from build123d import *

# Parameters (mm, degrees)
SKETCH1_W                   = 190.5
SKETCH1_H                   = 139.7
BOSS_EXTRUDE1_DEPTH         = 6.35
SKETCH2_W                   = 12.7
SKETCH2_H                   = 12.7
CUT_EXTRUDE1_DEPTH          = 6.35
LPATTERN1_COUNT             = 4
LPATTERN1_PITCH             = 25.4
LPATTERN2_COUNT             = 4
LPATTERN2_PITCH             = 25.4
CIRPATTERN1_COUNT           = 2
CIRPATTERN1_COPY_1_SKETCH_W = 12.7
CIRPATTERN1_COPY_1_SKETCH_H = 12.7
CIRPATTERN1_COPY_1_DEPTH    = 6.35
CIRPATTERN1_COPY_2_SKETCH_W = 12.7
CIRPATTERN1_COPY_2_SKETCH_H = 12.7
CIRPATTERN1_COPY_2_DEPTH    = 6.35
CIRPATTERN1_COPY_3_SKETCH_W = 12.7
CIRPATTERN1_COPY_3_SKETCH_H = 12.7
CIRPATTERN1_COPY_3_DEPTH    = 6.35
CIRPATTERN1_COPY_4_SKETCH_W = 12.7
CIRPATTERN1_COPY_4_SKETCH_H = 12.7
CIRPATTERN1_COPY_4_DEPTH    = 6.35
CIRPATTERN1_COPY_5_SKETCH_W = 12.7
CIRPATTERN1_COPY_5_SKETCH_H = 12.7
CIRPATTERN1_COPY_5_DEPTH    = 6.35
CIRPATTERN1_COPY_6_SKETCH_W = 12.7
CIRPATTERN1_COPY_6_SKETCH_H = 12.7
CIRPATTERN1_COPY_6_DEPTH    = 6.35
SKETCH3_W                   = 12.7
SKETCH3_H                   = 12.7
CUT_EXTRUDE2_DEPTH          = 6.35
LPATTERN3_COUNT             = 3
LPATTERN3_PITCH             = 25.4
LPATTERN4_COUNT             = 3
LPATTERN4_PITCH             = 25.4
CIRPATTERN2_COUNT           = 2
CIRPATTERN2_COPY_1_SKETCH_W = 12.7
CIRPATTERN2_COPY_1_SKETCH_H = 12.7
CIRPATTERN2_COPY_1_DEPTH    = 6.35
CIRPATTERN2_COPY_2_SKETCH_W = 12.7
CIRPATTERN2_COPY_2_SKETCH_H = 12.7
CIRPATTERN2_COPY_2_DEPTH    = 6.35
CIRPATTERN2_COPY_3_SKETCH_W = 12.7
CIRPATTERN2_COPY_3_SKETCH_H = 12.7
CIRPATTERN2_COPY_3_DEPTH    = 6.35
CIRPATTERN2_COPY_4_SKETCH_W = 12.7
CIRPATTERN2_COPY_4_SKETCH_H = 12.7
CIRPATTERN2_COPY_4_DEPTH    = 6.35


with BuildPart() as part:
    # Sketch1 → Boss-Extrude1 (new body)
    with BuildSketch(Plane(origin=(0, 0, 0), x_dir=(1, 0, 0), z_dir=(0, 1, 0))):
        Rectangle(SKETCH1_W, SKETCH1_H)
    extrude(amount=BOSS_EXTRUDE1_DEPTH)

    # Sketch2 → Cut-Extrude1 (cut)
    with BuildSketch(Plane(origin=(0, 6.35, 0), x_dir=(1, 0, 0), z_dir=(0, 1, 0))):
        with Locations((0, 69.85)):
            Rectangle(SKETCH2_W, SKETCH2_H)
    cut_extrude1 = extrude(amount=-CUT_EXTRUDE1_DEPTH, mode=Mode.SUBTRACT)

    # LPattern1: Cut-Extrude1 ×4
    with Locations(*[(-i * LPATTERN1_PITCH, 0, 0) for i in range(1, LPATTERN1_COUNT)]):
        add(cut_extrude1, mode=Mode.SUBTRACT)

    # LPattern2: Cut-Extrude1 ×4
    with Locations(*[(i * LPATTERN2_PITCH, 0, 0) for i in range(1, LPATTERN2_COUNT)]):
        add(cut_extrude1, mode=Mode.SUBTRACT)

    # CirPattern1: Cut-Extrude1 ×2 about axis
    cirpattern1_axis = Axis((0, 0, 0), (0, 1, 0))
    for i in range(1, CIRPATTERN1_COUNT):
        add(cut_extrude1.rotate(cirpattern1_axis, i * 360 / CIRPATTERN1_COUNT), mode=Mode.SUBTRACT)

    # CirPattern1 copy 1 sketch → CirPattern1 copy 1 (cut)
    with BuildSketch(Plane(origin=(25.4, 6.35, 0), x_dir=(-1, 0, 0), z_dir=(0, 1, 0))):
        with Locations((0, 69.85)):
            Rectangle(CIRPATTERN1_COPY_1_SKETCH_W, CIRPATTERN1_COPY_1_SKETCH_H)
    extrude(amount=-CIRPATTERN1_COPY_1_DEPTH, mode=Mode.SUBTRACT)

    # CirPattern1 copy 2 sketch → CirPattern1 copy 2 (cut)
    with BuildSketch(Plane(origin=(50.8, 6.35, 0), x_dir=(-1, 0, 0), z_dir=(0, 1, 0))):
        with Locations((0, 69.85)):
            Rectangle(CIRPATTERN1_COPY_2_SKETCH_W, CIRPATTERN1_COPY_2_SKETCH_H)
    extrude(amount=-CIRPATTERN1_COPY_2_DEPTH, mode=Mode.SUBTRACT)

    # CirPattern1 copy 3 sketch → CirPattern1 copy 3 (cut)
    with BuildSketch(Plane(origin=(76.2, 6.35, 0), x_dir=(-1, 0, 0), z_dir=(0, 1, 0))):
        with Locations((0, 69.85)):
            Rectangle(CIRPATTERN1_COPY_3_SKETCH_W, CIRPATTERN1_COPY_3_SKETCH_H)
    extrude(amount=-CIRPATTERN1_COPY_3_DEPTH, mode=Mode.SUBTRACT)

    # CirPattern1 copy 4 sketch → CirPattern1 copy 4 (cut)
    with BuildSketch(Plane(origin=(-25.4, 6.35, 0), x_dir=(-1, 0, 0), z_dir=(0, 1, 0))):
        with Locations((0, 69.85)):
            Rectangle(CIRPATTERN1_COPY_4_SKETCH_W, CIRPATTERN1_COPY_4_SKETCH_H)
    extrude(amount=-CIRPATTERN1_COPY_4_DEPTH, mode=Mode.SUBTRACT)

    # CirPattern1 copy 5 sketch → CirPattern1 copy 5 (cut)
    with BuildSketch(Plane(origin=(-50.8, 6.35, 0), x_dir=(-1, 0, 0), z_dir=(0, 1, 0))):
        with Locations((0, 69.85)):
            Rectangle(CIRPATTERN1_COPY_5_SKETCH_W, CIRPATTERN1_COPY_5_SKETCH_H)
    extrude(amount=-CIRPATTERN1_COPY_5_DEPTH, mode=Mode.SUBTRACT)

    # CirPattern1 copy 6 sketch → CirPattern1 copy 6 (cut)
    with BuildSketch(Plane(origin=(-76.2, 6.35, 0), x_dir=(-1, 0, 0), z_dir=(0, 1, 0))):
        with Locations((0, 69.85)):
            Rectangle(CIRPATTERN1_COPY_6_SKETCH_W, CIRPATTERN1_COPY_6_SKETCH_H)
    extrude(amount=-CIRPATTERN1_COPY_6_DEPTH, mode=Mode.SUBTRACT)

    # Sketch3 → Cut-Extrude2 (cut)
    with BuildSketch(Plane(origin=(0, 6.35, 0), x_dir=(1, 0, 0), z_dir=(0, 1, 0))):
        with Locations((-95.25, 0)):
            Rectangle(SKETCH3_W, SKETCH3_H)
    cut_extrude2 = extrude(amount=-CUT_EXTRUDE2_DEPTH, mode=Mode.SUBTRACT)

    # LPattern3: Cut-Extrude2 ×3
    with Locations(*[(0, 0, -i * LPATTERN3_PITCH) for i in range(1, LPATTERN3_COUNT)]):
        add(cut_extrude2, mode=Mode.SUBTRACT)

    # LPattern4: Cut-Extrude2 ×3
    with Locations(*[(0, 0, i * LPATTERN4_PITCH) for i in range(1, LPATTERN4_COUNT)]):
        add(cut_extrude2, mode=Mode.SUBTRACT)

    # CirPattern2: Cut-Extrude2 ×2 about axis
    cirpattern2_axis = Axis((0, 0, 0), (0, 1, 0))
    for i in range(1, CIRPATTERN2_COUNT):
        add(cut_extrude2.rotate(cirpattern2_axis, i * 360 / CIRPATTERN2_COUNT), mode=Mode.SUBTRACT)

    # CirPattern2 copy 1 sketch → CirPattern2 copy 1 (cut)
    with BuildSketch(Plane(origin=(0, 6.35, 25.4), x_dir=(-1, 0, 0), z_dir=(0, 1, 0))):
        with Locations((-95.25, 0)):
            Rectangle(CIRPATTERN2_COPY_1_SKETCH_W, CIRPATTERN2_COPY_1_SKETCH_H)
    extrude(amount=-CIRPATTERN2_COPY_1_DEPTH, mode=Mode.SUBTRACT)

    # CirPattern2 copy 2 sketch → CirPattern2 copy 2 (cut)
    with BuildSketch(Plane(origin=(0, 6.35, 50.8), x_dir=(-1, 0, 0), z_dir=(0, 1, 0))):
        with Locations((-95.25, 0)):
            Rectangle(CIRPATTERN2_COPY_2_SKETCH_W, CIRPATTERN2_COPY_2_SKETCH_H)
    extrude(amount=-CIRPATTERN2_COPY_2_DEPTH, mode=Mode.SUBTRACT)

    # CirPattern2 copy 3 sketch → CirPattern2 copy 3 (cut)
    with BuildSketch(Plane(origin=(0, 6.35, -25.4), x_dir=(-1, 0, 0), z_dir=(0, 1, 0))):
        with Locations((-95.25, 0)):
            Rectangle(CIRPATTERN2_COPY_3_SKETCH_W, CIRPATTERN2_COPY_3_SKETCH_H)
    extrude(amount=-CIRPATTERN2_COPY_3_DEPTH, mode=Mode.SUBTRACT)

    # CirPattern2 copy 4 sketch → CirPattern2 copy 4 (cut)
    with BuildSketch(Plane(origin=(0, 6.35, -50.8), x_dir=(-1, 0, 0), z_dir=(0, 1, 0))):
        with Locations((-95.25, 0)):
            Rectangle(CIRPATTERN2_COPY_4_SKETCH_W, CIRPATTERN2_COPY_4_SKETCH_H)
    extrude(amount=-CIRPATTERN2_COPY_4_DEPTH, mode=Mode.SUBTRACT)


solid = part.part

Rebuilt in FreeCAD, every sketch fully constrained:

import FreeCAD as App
import Part
import Sketcher
Q = App.Units.Quantity


def add_polygon(sketch, points):
    """Adds a closed chain of lines whose ends are joined by coincident constraints."""
    first, n = sketch.GeometryCount, len(points)
    for a, b in zip(points, points[1:] + points[:1]):
        sketch.addGeometry(Part.LineSegment(App.Vector(*a, 0), App.Vector(*b, 0)), False)
    for i in range(n):
        sketch.addConstraint(Sketcher.Constraint("Coincident", first + i, 2, first + (i + 1) % n, 1))

doc = App.newDocument("Part")
params = doc.addObject("Spreadsheet::Sheet", "Params")
for row, (alias, value) in enumerate([
    ("sketch1_width", "7.5 in"),
    ("sketch1_height", "5.5 in"),
    ("pad1_length", "0.25 in"),
    ("sketch2_width", "0.5 in"),
    ("pocket1_length", "0.25 in"),
    ("linearpattern_pitch", "1 in"),
    ("linearpattern2_pitch", "1 in"),
    ("sketch3_width", "0.5 in"),
    ("pocket2_length", "0.25 in"),
    ("sketch4_width", "0.5 in"),
    ("pocket3_length", "0.25 in"),
    ("sketch5_width", "0.5 in"),
    ("pocket4_length", "0.25 in"),
    ("sketch6_width", "0.5 in"),
    ("pocket5_length", "0.25 in"),
    ("sketch7_width", "0.5 in"),
    ("pocket6_length", "0.25 in"),
    ("sketch8_width", "0.5 in"),
    ("pocket7_length", "0.25 in"),
    ("sketch9_width", "0.5 in"),
    ("pocket8_length", "0.25 in"),
    ("linearpattern3_pitch", "1 in"),
    ("linearpattern4_pitch", "1 in"),
    ("sketch10_width", "0.5 in"),
    ("pocket9_length", "0.25 in"),
    ("sketch11_width", "0.5 in"),
    ("pocket10_length", "0.25 in"),
    ("sketch12_width", "0.5 in"),
    ("pocket11_length", "0.25 in"),
    ("sketch13_width", "0.5 in"),
    ("pocket12_length", "0.25 in"),
], start=1):
    params.set(f"A{row}", alias)
    params.set(f"B{row}", "=" + value)
    params.setAlias(f"B{row}", alias)

body = doc.addObject("PartDesign::Body", "Body")

sketch1 = body.newObject("Sketcher::SketchObject", "Sketch")
sketch1.AttachmentSupport = (doc.getObject("XZ_Plane"), [""])
sketch1.MapMode = "FlatFace"
add_polygon(sketch1, [(-95, -70), (-95, 70), (95, 70), (95, -70)])
sketch1.addConstraint(Sketcher.Constraint("Vertical", 0))
sketch1.addConstraint(Sketcher.Constraint("Horizontal", 1))
sketch1.addConstraint(Sketcher.Constraint("Vertical", 2))
sketch1.addConstraint(Sketcher.Constraint("Horizontal", 3))
sketch1.addConstraint(Sketcher.Constraint("Symmetric", 0, 2, 2, 2, -1, 1))
sketch1.addConstraint(Sketcher.Constraint("DistanceX", 1, 1, 1, 2, Q("7.5 in")))
sketch1.addConstraint(Sketcher.Constraint("DistanceY", 0, 1, 0, 2, Q("5.5 in")))
sketch1.setExpression("Constraints[9]", "Params.sketch1_width")
sketch1.setExpression("Constraints[10]", "Params.sketch1_height")
pad1 = body.newObject("PartDesign::Pad", "Pad")
pad1.Profile = sketch1
pad1.setExpression("Length", "Params.pad1_length")
pad1.Reversed = True

sketch2 = body.newObject("Sketcher::SketchObject", "Sketch001")
sketch2.AttachmentSupport = (doc.getObject("XZ_Plane"), [""])
sketch2.MapMode = "FlatFace"
sketch2.AttachmentOffset = App.Placement(App.Vector(0, 0, -0.25 * 25.4), App.Rotation())
add_polygon(sketch2, [(-6, -76), (-6, -64), (6, -64), (6, -76)])
sketch2.addConstraint(Sketcher.Constraint("Vertical", 0))
sketch2.addConstraint(Sketcher.Constraint("Horizontal", 1))
sketch2.addConstraint(Sketcher.Constraint("Vertical", 2))
sketch2.addConstraint(Sketcher.Constraint("Horizontal", 3))
sketch2.addConstraint(Sketcher.Constraint("Equal", 3, 0))
sketch2.addConstraint(Sketcher.Constraint("DistanceX", 1, 1, 1, 2, Q("0.5 in")))
sketch2.addConstraint(Sketcher.Constraint("DistanceY", 2, 2, -1, 1, Q("3 in")))
sketch2.addConstraint(Sketcher.Constraint("DistanceX", 0, 2, -1, 1, Q("0.25 in")))
sketch2.setExpression("Constraints[9]", "Params.sketch2_width")
pocket1 = body.newObject("PartDesign::Pocket", "Pocket")
pocket1.Profile = sketch2
pocket1.setExpression("Length", "Params.pocket1_length")
pocket1.Reversed = True
doc.recompute()

linearpattern = body.newObject("PartDesign::LinearPattern", "LinearPattern")
linearpattern.Originals = [pocket1]
linearpattern.Direction = (doc.getObject("X_Axis"), [""])
linearpattern.Mode = "offset"
linearpattern.setExpression("Offset", "Params.linearpattern_pitch")
linearpattern.Occurrences = 4
linearpattern.Reversed = True
body.Tip = linearpattern
doc.recompute()

linearpattern2 = body.newObject("PartDesign::LinearPattern", "LinearPattern001")
linearpattern2.Originals = [pocket1]
linearpattern2.Direction = (doc.getObject("X_Axis"), [""])
linearpattern2.Mode = "offset"
linearpattern2.setExpression("Offset", "Params.linearpattern2_pitch")
linearpattern2.Occurrences = 4
body.Tip = linearpattern2
doc.recompute()

polarpattern = body.newObject("PartDesign::PolarPattern", "PolarPattern")
polarpattern.Originals = [pocket1]
polarpattern.Axis = (doc.getObject("Y_Axis"), [""])
polarpattern.Angle = 360
polarpattern.Occurrences = 2
body.Tip = polarpattern

sketch3 = body.newObject("Sketcher::SketchObject", "Sketch002")
sketch3.AttachmentSupport = (doc.getObject("XZ_Plane"), [""])
sketch3.MapMode = "FlatFace"
sketch3.AttachmentOffset = App.Placement(App.Vector(0, 0, -0.25 * 25.4), App.Rotation())
add_polygon(sketch3, [(32, 76), (32, 64), (19, 64), (19, 76)])
sketch3.addConstraint(Sketcher.Constraint("Vertical", 0))
sketch3.addConstraint(Sketcher.Constraint("Horizontal", 1))
sketch3.addConstraint(Sketcher.Constraint("Vertical", 2))
sketch3.addConstraint(Sketcher.Constraint("Horizontal", 3))
sketch3.addConstraint(Sketcher.Constraint("Equal", 3, 0))
sketch3.addConstraint(Sketcher.Constraint("DistanceX", 1, 2, 1, 1, Q("0.5 in")))
sketch3.addConstraint(Sketcher.Constraint("DistanceY", -1, 1, 2, 2, Q("3 in")))
sketch3.addConstraint(Sketcher.Constraint("DistanceX", -1, 1, 0, 2, Q("1.25 in")))
sketch3.setExpression("Constraints[9]", "Params.sketch3_width")
pocket2 = body.newObject("PartDesign::Pocket", "Pocket001")
pocket2.Profile = sketch3
pocket2.setExpression("Length", "Params.pocket2_length")
pocket2.Reversed = True

sketch4 = body.newObject("Sketcher::SketchObject", "Sketch003")
sketch4.AttachmentSupport = (doc.getObject("XZ_Plane"), [""])
sketch4.MapMode = "FlatFace"
sketch4.AttachmentOffset = App.Placement(App.Vector(0, 0, -0.25 * 25.4), App.Rotation())
add_polygon(sketch4, [(57, 76), (57, 64), (44, 64), (44, 76)])
sketch4.addConstraint(Sketcher.Constraint("Vertical", 0))
sketch4.addConstraint(Sketcher.Constraint("Horizontal", 1))
sketch4.addConstraint(Sketcher.Constraint("Vertical", 2))
sketch4.addConstraint(Sketcher.Constraint("Horizontal", 3))
sketch4.addConstraint(Sketcher.Constraint("Equal", 3, 0))
sketch4.addConstraint(Sketcher.Constraint("DistanceX", 1, 2, 1, 1, Q("0.5 in")))
sketch4.addConstraint(Sketcher.Constraint("DistanceY", -1, 1, 2, 2, Q("3 in")))
sketch4.addConstraint(Sketcher.Constraint("DistanceX", -1, 1, 0, 2, Q("2.25 in")))
sketch4.setExpression("Constraints[9]", "Params.sketch4_width")
pocket3 = body.newObject("PartDesign::Pocket", "Pocket002")
pocket3.Profile = sketch4
pocket3.setExpression("Length", "Params.pocket3_length")
pocket3.Reversed = True

sketch5 = body.newObject("Sketcher::SketchObject", "Sketch004")
sketch5.AttachmentSupport = (doc.getObject("XZ_Plane"), [""])
sketch5.MapMode = "FlatFace"
sketch5.AttachmentOffset = App.Placement(App.Vector(0, 0, -0.25 * 25.4), App.Rotation())
add_polygon(sketch5, [(83, 76), (83, 64), (70, 64), (70, 76)])
sketch5.addConstraint(Sketcher.Constraint("Vertical", 0))
sketch5.addConstraint(Sketcher.Constraint("Horizontal", 1))
sketch5.addConstraint(Sketcher.Constraint("Vertical", 2))
sketch5.addConstraint(Sketcher.Constraint("Horizontal", 3))
sketch5.addConstraint(Sketcher.Constraint("Equal", 3, 0))
sketch5.addConstraint(Sketcher.Constraint("DistanceX", 1, 2, 1, 1, Q("0.5 in")))
sketch5.addConstraint(Sketcher.Constraint("DistanceY", -1, 1, 2, 2, Q("3 in")))
sketch5.addConstraint(Sketcher.Constraint("DistanceX", -1, 1, 0, 2, Q("3.25 in")))
sketch5.setExpression("Constraints[9]", "Params.sketch5_width")
pocket4 = body.newObject("PartDesign::Pocket", "Pocket003")
pocket4.Profile = sketch5
pocket4.setExpression("Length", "Params.pocket4_length")
pocket4.Reversed = True

sketch6 = body.newObject("Sketcher::SketchObject", "Sketch005")
sketch6.AttachmentSupport = (doc.getObject("XZ_Plane"), [""])
sketch6.MapMode = "FlatFace"
sketch6.AttachmentOffset = App.Placement(App.Vector(0, 0, -0.25 * 25.4), App.Rotation())
add_polygon(sketch6, [(-19, 76), (-19, 64), (-32, 64), (-32, 76)])
sketch6.addConstraint(Sketcher.Constraint("Vertical", 0))
sketch6.addConstraint(Sketcher.Constraint("Horizontal", 1))
sketch6.addConstraint(Sketcher.Constraint("Vertical", 2))
sketch6.addConstraint(Sketcher.Constraint("Horizontal", 3))
sketch6.addConstraint(Sketcher.Constraint("Equal", 3, 0))
sketch6.addConstraint(Sketcher.Constraint("DistanceX", 1, 2, 1, 1, Q("0.5 in")))
sketch6.addConstraint(Sketcher.Constraint("DistanceY", -1, 1, 2, 2, Q("3 in")))
sketch6.addConstraint(Sketcher.Constraint("DistanceX", 0, 2, -1, 1, Q("0.75 in")))
sketch6.setExpression("Constraints[9]", "Params.sketch6_width")
pocket5 = body.newObject("PartDesign::Pocket", "Pocket004")
pocket5.Profile = sketch6
pocket5.setExpression("Length", "Params.pocket5_length")
pocket5.Reversed = True

sketch7 = body.newObject("Sketcher::SketchObject", "Sketch006")
sketch7.AttachmentSupport = (doc.getObject("XZ_Plane"), [""])
sketch7.MapMode = "FlatFace"
sketch7.AttachmentOffset = App.Placement(App.Vector(0, 0, -0.25 * 25.4), App.Rotation())
add_polygon(sketch7, [(-44, 76), (-44, 64), (-57, 64), (-57, 76)])
sketch7.addConstraint(Sketcher.Constraint("Vertical", 0))
sketch7.addConstraint(Sketcher.Constraint("Horizontal", 1))
sketch7.addConstraint(Sketcher.Constraint("Vertical", 2))
sketch7.addConstraint(Sketcher.Constraint("Horizontal", 3))
sketch7.addConstraint(Sketcher.Constraint("Equal", 3, 0))
sketch7.addConstraint(Sketcher.Constraint("DistanceX", 1, 2, 1, 1, Q("0.5 in")))
sketch7.addConstraint(Sketcher.Constraint("DistanceY", -1, 1, 2, 2, Q("3 in")))
sketch7.addConstraint(Sketcher.Constraint("DistanceX", 0, 2, -1, 1, Q("1.75 in")))
sketch7.setExpression("Constraints[9]", "Params.sketch7_width")
pocket6 = body.newObject("PartDesign::Pocket", "Pocket005")
pocket6.Profile = sketch7
pocket6.setExpression("Length", "Params.pocket6_length")
pocket6.Reversed = True

sketch8 = body.newObject("Sketcher::SketchObject", "Sketch007")
sketch8.AttachmentSupport = (doc.getObject("XZ_Plane"), [""])
sketch8.MapMode = "FlatFace"
sketch8.AttachmentOffset = App.Placement(App.Vector(0, 0, -0.25 * 25.4), App.Rotation())
add_polygon(sketch8, [(-70, 76), (-70, 64), (-83, 64), (-83, 76)])
sketch8.addConstraint(Sketcher.Constraint("Vertical", 0))
sketch8.addConstraint(Sketcher.Constraint("Horizontal", 1))
sketch8.addConstraint(Sketcher.Constraint("Vertical", 2))
sketch8.addConstraint(Sketcher.Constraint("Horizontal", 3))
sketch8.addConstraint(Sketcher.Constraint("Equal", 3, 0))
sketch8.addConstraint(Sketcher.Constraint("DistanceX", 1, 2, 1, 1, Q("0.5 in")))
sketch8.addConstraint(Sketcher.Constraint("DistanceY", -1, 1, 2, 2, Q("3 in")))
sketch8.addConstraint(Sketcher.Constraint("DistanceX", 0, 2, -1, 1, Q("2.75 in")))
sketch8.setExpression("Constraints[9]", "Params.sketch8_width")
pocket7 = body.newObject("PartDesign::Pocket", "Pocket006")
pocket7.Profile = sketch8
pocket7.setExpression("Length", "Params.pocket7_length")
pocket7.Reversed = True

sketch9 = body.newObject("Sketcher::SketchObject", "Sketch008")
sketch9.AttachmentSupport = (doc.getObject("XZ_Plane"), [""])
sketch9.MapMode = "FlatFace"
sketch9.AttachmentOffset = App.Placement(App.Vector(0, 0, -0.25 * 25.4), App.Rotation())
add_polygon(sketch9, [(-102, -6), (-102, 6), (-89, 6), (-89, -6)])
sketch9.addConstraint(Sketcher.Constraint("Vertical", 0))
sketch9.addConstraint(Sketcher.Constraint("Horizontal", 1))
sketch9.addConstraint(Sketcher.Constraint("Vertical", 2))
sketch9.addConstraint(Sketcher.Constraint("Horizontal", 3))
sketch9.addConstraint(Sketcher.Constraint("Equal", 3, 0))
sketch9.addConstraint(Sketcher.Constraint("DistanceX", 1, 1, 1, 2, Q("0.5 in")))
sketch9.addConstraint(Sketcher.Constraint("DistanceX", 0, 2, -1, 1, Q("4 in")))
sketch9.addConstraint(Sketcher.Constraint("DistanceY", -1, 1, 0, 2, Q("0.25 in")))
sketch9.setExpression("Constraints[9]", "Params.sketch9_width")
pocket8 = body.newObject("PartDesign::Pocket", "Pocket007")
pocket8.Profile = sketch9
pocket8.setExpression("Length", "Params.pocket8_length")
pocket8.Reversed = True
doc.recompute()

linearpattern3 = body.newObject("PartDesign::LinearPattern", "LinearPattern002")
linearpattern3.Originals = [pocket8]
linearpattern3.Direction = (doc.getObject("Z_Axis"), [""])
linearpattern3.Mode = "offset"
linearpattern3.setExpression("Offset", "Params.linearpattern3_pitch")
linearpattern3.Occurrences = 3
linearpattern3.Reversed = True
body.Tip = linearpattern3
doc.recompute()

linearpattern4 = body.newObject("PartDesign::LinearPattern", "LinearPattern003")
linearpattern4.Originals = [pocket8]
linearpattern4.Direction = (doc.getObject("Z_Axis"), [""])
linearpattern4.Mode = "offset"
linearpattern4.setExpression("Offset", "Params.linearpattern4_pitch")
linearpattern4.Occurrences = 3
body.Tip = linearpattern4
doc.recompute()

polarpattern2 = body.newObject("PartDesign::PolarPattern", "PolarPattern001")
polarpattern2.Originals = [pocket8]
polarpattern2.Axis = (doc.getObject("Y_Axis"), [""])
polarpattern2.Angle = 360
polarpattern2.Occurrences = 2
body.Tip = polarpattern2

sketch10 = body.newObject("Sketcher::SketchObject", "Sketch009")
sketch10.AttachmentSupport = (doc.getObject("XZ_Plane"), [""])
sketch10.MapMode = "FlatFace"
sketch10.AttachmentOffset = App.Placement(App.Vector(0, 0, -0.25 * 25.4), App.Rotation())
add_polygon(sketch10, [(102, 32), (102, 19), (89, 19), (89, 32)])
sketch10.addConstraint(Sketcher.Constraint("Vertical", 0))
sketch10.addConstraint(Sketcher.Constraint("Horizontal", 1))
sketch10.addConstraint(Sketcher.Constraint("Vertical", 2))
sketch10.addConstraint(Sketcher.Constraint("Horizontal", 3))
sketch10.addConstraint(Sketcher.Constraint("Equal", 3, 0))
sketch10.addConstraint(Sketcher.Constraint("DistanceX", 1, 2, 1, 1, Q("0.5 in")))
sketch10.addConstraint(Sketcher.Constraint("DistanceX", -1, 1, 0, 2, Q("4 in")))
sketch10.addConstraint(Sketcher.Constraint("DistanceY", -1, 1, 0, 2, Q("0.75 in")))
sketch10.setExpression("Constraints[9]", "Params.sketch10_width")
pocket9 = body.newObject("PartDesign::Pocket", "Pocket008")
pocket9.Profile = sketch10
pocket9.setExpression("Length", "Params.pocket9_length")
pocket9.Reversed = True

sketch11 = body.newObject("Sketcher::SketchObject", "Sketch010")
sketch11.AttachmentSupport = (doc.getObject("XZ_Plane"), [""])
sketch11.MapMode = "FlatFace"
sketch11.AttachmentOffset = App.Placement(App.Vector(0, 0, -0.25 * 25.4), App.Rotation())
add_polygon(sketch11, [(102, 57), (102, 44), (89, 44), (89, 57)])
sketch11.addConstraint(Sketcher.Constraint("Vertical", 0))
sketch11.addConstraint(Sketcher.Constraint("Horizontal", 1))
sketch11.addConstraint(Sketcher.Constraint("Vertical", 2))
sketch11.addConstraint(Sketcher.Constraint("Horizontal", 3))
sketch11.addConstraint(Sketcher.Constraint("Equal", 3, 0))
sketch11.addConstraint(Sketcher.Constraint("DistanceX", 1, 2, 1, 1, Q("0.5 in")))
sketch11.addConstraint(Sketcher.Constraint("DistanceX", -1, 1, 0, 2, Q("4 in")))
sketch11.addConstraint(Sketcher.Constraint("DistanceY", -1, 1, 0, 2, Q("1.75 in")))
sketch11.setExpression("Constraints[9]", "Params.sketch11_width")
pocket10 = body.newObject("PartDesign::Pocket", "Pocket009")
pocket10.Profile = sketch11
pocket10.setExpression("Length", "Params.pocket10_length")
pocket10.Reversed = True

sketch12 = body.newObject("Sketcher::SketchObject", "Sketch011")
sketch12.AttachmentSupport = (doc.getObject("XZ_Plane"), [""])
sketch12.MapMode = "FlatFace"
sketch12.AttachmentOffset = App.Placement(App.Vector(0, 0, -0.25 * 25.4), App.Rotation())
add_polygon(sketch12, [(102, -19), (102, -32), (89, -32), (89, -19)])
sketch12.addConstraint(Sketcher.Constraint("Vertical", 0))
sketch12.addConstraint(Sketcher.Constraint("Horizontal", 1))
sketch12.addConstraint(Sketcher.Constraint("Vertical", 2))
sketch12.addConstraint(Sketcher.Constraint("Horizontal", 3))
sketch12.addConstraint(Sketcher.Constraint("Equal", 3, 0))
sketch12.addConstraint(Sketcher.Constraint("DistanceX", 1, 2, 1, 1, Q("0.5 in")))
sketch12.addConstraint(Sketcher.Constraint("DistanceX", -1, 1, 0, 2, Q("4 in")))
sketch12.addConstraint(Sketcher.Constraint("DistanceY", 0, 2, -1, 1, Q("1.25 in")))
sketch12.setExpression("Constraints[9]", "Params.sketch12_width")
pocket11 = body.newObject("PartDesign::Pocket", "Pocket010")
pocket11.Profile = sketch12
pocket11.setExpression("Length", "Params.pocket11_length")
pocket11.Reversed = True

sketch13 = body.newObject("Sketcher::SketchObject", "Sketch012")
sketch13.AttachmentSupport = (doc.getObject("XZ_Plane"), [""])
sketch13.MapMode = "FlatFace"
sketch13.AttachmentOffset = App.Placement(App.Vector(0, 0, -0.25 * 25.4), App.Rotation())
add_polygon(sketch13, [(102, -44), (102, -57), (89, -57), (89, -44)])
sketch13.addConstraint(Sketcher.Constraint("Vertical", 0))
sketch13.addConstraint(Sketcher.Constraint("Horizontal", 1))
sketch13.addConstraint(Sketcher.Constraint("Vertical", 2))
sketch13.addConstraint(Sketcher.Constraint("Horizontal", 3))
sketch13.addConstraint(Sketcher.Constraint("Equal", 3, 0))
sketch13.addConstraint(Sketcher.Constraint("DistanceX", 1, 2, 1, 1, Q("0.5 in")))
sketch13.addConstraint(Sketcher.Constraint("DistanceX", -1, 1, 0, 2, Q("4 in")))
sketch13.addConstraint(Sketcher.Constraint("DistanceY", 0, 2, -1, 1, Q("2.25 in")))
sketch13.setExpression("Constraints[9]", "Params.sketch13_width")
pocket12 = body.newObject("PartDesign::Pocket", "Pocket011")
pocket12.Profile = sketch13
pocket12.setExpression("Length", "Params.pocket12_length")
pocket12.Reversed = True

doc.recompute()
